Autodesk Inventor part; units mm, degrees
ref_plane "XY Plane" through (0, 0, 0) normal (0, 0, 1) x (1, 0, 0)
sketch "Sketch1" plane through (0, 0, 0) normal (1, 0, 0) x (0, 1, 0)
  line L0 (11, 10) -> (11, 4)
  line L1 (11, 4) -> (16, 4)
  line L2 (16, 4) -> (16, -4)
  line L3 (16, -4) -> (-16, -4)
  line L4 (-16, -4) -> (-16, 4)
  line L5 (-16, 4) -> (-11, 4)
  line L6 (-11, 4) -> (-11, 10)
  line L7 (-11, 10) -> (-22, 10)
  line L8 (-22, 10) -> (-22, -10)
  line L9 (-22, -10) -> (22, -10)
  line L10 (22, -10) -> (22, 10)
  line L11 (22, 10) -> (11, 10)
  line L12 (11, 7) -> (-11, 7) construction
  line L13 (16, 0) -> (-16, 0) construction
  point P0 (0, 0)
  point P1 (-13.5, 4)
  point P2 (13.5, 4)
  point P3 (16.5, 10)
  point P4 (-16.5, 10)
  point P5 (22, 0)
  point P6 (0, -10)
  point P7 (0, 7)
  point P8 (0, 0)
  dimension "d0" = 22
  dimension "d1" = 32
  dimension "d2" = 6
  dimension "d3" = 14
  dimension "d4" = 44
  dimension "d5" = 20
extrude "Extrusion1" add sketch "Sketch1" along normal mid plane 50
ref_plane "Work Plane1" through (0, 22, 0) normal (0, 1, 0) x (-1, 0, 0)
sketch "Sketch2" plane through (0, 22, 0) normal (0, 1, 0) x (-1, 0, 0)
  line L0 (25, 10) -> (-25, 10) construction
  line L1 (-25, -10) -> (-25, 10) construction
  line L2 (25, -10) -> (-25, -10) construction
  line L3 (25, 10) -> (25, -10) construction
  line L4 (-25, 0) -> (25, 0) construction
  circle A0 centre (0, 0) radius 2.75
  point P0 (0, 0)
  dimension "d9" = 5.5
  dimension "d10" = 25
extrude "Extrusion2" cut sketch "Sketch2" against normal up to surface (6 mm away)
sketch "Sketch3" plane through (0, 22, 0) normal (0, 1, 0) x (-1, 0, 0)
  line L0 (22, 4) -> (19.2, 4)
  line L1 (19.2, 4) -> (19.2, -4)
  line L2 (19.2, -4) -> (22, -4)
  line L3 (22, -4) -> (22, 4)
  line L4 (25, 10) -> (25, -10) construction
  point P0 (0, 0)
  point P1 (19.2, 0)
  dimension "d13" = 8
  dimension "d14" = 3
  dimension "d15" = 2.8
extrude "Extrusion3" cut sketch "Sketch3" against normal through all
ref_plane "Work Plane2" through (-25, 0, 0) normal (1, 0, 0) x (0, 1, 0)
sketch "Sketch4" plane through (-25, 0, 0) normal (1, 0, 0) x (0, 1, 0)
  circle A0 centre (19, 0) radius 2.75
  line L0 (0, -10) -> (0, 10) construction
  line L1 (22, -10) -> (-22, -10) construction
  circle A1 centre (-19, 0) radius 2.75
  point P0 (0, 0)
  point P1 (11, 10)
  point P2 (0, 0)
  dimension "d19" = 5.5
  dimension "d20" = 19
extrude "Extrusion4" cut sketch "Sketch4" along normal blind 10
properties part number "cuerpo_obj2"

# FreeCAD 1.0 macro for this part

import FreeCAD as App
import Part
import Sketcher

V = App.Vector
Q = App.Units.Quantity


def add_polygon(sketch, points):
    """Adds a closed chain of lines whose ends are joined by coincident constraints."""
    first, n = sketch.GeometryCount, len(points)
    for a, b in zip(points, points[1:] + points[:1]):
        sketch.addGeometry(Part.LineSegment(App.Vector(*a, 0), App.Vector(*b, 0)), False)
    for i in range(n):
        sketch.addConstraint(Sketcher.Constraint("Coincident", first + i, 2, first + (i + 1) % n, 1))

doc = App.newDocument("Part")
body = doc.addObject("PartDesign::Body", "Body")

# Sketch on YZ plane
sketch1 = doc.addObject("Sketcher::SketchObject", "Sketch")
body.addObject(sketch1)
sketch1.AttachmentSupport = (doc.YZ_Plane, [""])
sketch1.MapMode = "FlatFace"
add_polygon(sketch1, [(22, 10), (11, 10), (11, 4), (16, 4), (16, -4), (-16, -4), (-16, 4), (-11, 4), (-11, 10), (-22, 10), (-22, -10), (22, -10)])  # lines 0-11
sketch1.addConstraint(Sketcher.Constraint("Horizontal", 0))
sketch1.addConstraint(Sketcher.Constraint("Vertical", 1))
sketch1.addConstraint(Sketcher.Constraint("Horizontal", 2))
sketch1.addConstraint(Sketcher.Constraint("Vertical", 3))
sketch1.addConstraint(Sketcher.Constraint("Horizontal", 4))
sketch1.addConstraint(Sketcher.Constraint("Vertical", 5))
sketch1.addConstraint(Sketcher.Constraint("Horizontal", 6))
sketch1.addConstraint(Sketcher.Constraint("Vertical", 7))
sketch1.addConstraint(Sketcher.Constraint("Horizontal", 8))
sketch1.addConstraint(Sketcher.Constraint("Vertical", 9))
sketch1.addConstraint(Sketcher.Constraint("Horizontal", 10))
sketch1.addConstraint(Sketcher.Constraint("Vertical", 11))
sketch1.addConstraint(Sketcher.Constraint("Symmetric", 2, 2, 4, 2, -1, 1))
sketch1.addConstraint(Sketcher.Constraint("Symmetric", 8, 2, 10, 2, -1, 1))
sketch1.addConstraint(Sketcher.Constraint("Symmetric", 1, 2, 6, 2, -2))
sketch1.addConstraint(Sketcher.Constraint("Horizontal", 0, 2, 7, 2))
sketch1.addConstraint(Sketcher.Constraint("DistanceX", 4, 2, 4, 1, Q("32 mm")))
sketch1.addConstraint(Sketcher.Constraint("DistanceX", 10, 1, 10, 2, Q("44 mm")))
sketch1.addConstraint(Sketcher.Constraint("DistanceY", 1, 2, 1, 1, Q("6 mm")))
sketch1.addConstraint(Sketcher.Constraint("DistanceY", 9, 2, 9, 1, Q("20 mm")))
sketch1.addConstraint(Sketcher.Constraint("DistanceX", 6, 2, 1, 2, Q("22 mm")))
pad1 = doc.addObject("PartDesign::Pad", "Pad")
body.addObject(pad1)
pad1.Profile = sketch1
pad1.Length = 50
pad1.Midplane = True

# Sketch on XZ plane
sketch2 = doc.addObject("Sketcher::SketchObject", "Sketch001")
body.addObject(sketch2)
sketch2.AttachmentSupport = (doc.XZ_Plane, [""])
sketch2.MapMode = "FlatFace"
sketch2.AttachmentOffset = App.Placement(V(0, 0, -22), App.Rotation())
sketch2.addGeometry(Part.Circle(V(0, 0, 0), V(0, 0, 1), 2.8), False)
sketch2.addConstraint(Sketcher.Constraint("Coincident", 0, 3, -1, 1))
sketch2.addConstraint(Sketcher.Constraint("Diameter", 0, Q("5.5 mm")))
pocket1 = doc.addObject("PartDesign::Pocket", "Pocket")
body.addObject(pocket1)
pocket1.Profile = sketch2
pocket1.Length = 6
pocket1.Reversed = True

# Sketch on XZ plane
sketch3 = doc.addObject("Sketcher::SketchObject", "Sketch002")
body.addObject(sketch3)
sketch3.AttachmentSupport = (doc.XZ_Plane, [""])
sketch3.MapMode = "FlatFace"
sketch3.AttachmentOffset = App.Placement(V(0, 0, -22), App.Rotation())
add_polygon(sketch3, [(-22, -4), (-22, 4), (-19.2, 4), (-19.2, -4)])  # lines 0-3
sketch3.addConstraint(Sketcher.Constraint("Vertical", 0))
sketch3.addConstraint(Sketcher.Constraint("Horizontal", 1))
sketch3.addConstraint(Sketcher.Constraint("Vertical", 2))
sketch3.addConstraint(Sketcher.Constraint("Horizontal", 3))
sketch3.addConstraint(Sketcher.Constraint("DistanceY", 0, 1, 0, 2, Q("8 mm")))
sketch3.addConstraint(Sketcher.Constraint("DistanceX", 1, 1, 1, 2, Q("2.8 mm")))
sketch3.addConstraint(Sketcher.Constraint("DistanceX", 0, 2, -1, 1, Q("22 mm")))
sketch3.addConstraint(Sketcher.Constraint("DistanceY", -1, 1, 0, 2, Q("4 mm")))
pocket2 = doc.addObject("PartDesign::Pocket", "Pocket001")
body.addObject(pocket2)
pocket2.Profile = sketch3
pocket2.Type = "ThroughAll"
pocket2.Reversed = True

# Sketch on YZ plane
sketch4 = doc.addObject("Sketcher::SketchObject", "Sketch003")
body.addObject(sketch4)
sketch4.AttachmentSupport = (doc.YZ_Plane, [""])
sketch4.MapMode = "FlatFace"
sketch4.AttachmentOffset = App.Placement(V(0, 0, -25), App.Rotation())
sketch4.addGeometry(Part.Circle(V(19, 0, 0), V(0, 0, 1), 2.8), False)
sketch4.addGeometry(Part.Circle(V(-19, 0, 0), V(0, 0, 1), 2.8), False)
sketch4.addConstraint(Sketcher.Constraint("Equal", 0, 1))
sketch4.addConstraint(Sketcher.Constraint("Symmetric", 0, 3, 1, 3, -1, 1))
sketch4.addConstraint(Sketcher.Constraint("PointOnObject", 0, 3, -1))
sketch4.addConstraint(Sketcher.Constraint("Diameter", 0, Q("5.5 mm")))
sketch4.addConstraint(Sketcher.Constraint("DistanceX", -1, 1, 0, 3, Q("19 mm")))
pocket3 = doc.addObject("PartDesign::Pocket", "Pocket002")
body.addObject(pocket3)
pocket3.Profile = sketch4
pocket3.Length = 10
pocket3.Reversed = True

doc.recompute()
